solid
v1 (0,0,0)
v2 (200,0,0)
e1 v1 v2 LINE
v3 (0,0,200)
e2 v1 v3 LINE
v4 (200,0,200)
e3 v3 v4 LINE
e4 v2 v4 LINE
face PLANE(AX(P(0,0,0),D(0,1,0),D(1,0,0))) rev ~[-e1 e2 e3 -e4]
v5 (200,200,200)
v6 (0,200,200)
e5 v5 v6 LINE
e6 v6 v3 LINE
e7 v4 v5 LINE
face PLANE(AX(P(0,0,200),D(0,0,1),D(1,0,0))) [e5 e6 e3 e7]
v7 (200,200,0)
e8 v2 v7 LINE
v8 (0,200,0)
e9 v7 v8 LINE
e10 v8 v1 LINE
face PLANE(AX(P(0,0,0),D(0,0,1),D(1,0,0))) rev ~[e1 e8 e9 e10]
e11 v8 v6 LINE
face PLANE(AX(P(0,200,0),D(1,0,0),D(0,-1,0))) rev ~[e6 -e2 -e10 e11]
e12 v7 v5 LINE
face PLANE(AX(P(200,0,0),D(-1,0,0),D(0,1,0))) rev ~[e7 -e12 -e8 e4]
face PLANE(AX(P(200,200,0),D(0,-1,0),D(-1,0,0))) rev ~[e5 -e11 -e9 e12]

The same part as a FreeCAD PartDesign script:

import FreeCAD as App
import Part
import Sketcher

doc = App.newDocument("Part")
body = doc.addObject("PartDesign::Body", "Body")

# Sketch on XY plane
sketch1 = body.newObject("Sketcher::SketchObject", "Sketch")
sketch1.AttachmentSupport = (doc.getObject("XY_Plane"), [""])
sketch1.MapMode = "FlatFace"
sketch1.addGeometry([
    Part.LineSegment(App.Vector(0, 200, 0), App.Vector(0, 0, 0)),
    Part.LineSegment(App.Vector(0, 0, 0), App.Vector(200, 0, 0)),
    Part.LineSegment(App.Vector(200, 0, 0), App.Vector(200, 200, 0)),
    Part.LineSegment(App.Vector(200, 200, 0), App.Vector(0, 200, 0)),
], False)
sketch1.addConstraint([
    Sketcher.Constraint("Coincident", 0, 2, 1, 1),
    Sketcher.Constraint("Coincident", 1, 2, 2, 1),
    Sketcher.Constraint("Coincident", 2, 2, 3, 1),
    Sketcher.Constraint("Coincident", 3, 2, 0, 1),
    Sketcher.Constraint("Vertical", 0),
    Sketcher.Constraint("Horizontal", 1),
    Sketcher.Constraint("Vertical", 2),
    Sketcher.Constraint("Horizontal", 3),
    Sketcher.Constraint("Coincident", 0, 2, -1, 1),
    Sketcher.Constraint("Equal", 3, 0),
    Sketcher.Constraint("DistanceX", 1, 1, 1, 2, 200.0),
])
pad1 = body.newObject("PartDesign::Pad", "Pad")
pad1.Profile = sketch1
pad1.Length = 200

doc.recompute()
